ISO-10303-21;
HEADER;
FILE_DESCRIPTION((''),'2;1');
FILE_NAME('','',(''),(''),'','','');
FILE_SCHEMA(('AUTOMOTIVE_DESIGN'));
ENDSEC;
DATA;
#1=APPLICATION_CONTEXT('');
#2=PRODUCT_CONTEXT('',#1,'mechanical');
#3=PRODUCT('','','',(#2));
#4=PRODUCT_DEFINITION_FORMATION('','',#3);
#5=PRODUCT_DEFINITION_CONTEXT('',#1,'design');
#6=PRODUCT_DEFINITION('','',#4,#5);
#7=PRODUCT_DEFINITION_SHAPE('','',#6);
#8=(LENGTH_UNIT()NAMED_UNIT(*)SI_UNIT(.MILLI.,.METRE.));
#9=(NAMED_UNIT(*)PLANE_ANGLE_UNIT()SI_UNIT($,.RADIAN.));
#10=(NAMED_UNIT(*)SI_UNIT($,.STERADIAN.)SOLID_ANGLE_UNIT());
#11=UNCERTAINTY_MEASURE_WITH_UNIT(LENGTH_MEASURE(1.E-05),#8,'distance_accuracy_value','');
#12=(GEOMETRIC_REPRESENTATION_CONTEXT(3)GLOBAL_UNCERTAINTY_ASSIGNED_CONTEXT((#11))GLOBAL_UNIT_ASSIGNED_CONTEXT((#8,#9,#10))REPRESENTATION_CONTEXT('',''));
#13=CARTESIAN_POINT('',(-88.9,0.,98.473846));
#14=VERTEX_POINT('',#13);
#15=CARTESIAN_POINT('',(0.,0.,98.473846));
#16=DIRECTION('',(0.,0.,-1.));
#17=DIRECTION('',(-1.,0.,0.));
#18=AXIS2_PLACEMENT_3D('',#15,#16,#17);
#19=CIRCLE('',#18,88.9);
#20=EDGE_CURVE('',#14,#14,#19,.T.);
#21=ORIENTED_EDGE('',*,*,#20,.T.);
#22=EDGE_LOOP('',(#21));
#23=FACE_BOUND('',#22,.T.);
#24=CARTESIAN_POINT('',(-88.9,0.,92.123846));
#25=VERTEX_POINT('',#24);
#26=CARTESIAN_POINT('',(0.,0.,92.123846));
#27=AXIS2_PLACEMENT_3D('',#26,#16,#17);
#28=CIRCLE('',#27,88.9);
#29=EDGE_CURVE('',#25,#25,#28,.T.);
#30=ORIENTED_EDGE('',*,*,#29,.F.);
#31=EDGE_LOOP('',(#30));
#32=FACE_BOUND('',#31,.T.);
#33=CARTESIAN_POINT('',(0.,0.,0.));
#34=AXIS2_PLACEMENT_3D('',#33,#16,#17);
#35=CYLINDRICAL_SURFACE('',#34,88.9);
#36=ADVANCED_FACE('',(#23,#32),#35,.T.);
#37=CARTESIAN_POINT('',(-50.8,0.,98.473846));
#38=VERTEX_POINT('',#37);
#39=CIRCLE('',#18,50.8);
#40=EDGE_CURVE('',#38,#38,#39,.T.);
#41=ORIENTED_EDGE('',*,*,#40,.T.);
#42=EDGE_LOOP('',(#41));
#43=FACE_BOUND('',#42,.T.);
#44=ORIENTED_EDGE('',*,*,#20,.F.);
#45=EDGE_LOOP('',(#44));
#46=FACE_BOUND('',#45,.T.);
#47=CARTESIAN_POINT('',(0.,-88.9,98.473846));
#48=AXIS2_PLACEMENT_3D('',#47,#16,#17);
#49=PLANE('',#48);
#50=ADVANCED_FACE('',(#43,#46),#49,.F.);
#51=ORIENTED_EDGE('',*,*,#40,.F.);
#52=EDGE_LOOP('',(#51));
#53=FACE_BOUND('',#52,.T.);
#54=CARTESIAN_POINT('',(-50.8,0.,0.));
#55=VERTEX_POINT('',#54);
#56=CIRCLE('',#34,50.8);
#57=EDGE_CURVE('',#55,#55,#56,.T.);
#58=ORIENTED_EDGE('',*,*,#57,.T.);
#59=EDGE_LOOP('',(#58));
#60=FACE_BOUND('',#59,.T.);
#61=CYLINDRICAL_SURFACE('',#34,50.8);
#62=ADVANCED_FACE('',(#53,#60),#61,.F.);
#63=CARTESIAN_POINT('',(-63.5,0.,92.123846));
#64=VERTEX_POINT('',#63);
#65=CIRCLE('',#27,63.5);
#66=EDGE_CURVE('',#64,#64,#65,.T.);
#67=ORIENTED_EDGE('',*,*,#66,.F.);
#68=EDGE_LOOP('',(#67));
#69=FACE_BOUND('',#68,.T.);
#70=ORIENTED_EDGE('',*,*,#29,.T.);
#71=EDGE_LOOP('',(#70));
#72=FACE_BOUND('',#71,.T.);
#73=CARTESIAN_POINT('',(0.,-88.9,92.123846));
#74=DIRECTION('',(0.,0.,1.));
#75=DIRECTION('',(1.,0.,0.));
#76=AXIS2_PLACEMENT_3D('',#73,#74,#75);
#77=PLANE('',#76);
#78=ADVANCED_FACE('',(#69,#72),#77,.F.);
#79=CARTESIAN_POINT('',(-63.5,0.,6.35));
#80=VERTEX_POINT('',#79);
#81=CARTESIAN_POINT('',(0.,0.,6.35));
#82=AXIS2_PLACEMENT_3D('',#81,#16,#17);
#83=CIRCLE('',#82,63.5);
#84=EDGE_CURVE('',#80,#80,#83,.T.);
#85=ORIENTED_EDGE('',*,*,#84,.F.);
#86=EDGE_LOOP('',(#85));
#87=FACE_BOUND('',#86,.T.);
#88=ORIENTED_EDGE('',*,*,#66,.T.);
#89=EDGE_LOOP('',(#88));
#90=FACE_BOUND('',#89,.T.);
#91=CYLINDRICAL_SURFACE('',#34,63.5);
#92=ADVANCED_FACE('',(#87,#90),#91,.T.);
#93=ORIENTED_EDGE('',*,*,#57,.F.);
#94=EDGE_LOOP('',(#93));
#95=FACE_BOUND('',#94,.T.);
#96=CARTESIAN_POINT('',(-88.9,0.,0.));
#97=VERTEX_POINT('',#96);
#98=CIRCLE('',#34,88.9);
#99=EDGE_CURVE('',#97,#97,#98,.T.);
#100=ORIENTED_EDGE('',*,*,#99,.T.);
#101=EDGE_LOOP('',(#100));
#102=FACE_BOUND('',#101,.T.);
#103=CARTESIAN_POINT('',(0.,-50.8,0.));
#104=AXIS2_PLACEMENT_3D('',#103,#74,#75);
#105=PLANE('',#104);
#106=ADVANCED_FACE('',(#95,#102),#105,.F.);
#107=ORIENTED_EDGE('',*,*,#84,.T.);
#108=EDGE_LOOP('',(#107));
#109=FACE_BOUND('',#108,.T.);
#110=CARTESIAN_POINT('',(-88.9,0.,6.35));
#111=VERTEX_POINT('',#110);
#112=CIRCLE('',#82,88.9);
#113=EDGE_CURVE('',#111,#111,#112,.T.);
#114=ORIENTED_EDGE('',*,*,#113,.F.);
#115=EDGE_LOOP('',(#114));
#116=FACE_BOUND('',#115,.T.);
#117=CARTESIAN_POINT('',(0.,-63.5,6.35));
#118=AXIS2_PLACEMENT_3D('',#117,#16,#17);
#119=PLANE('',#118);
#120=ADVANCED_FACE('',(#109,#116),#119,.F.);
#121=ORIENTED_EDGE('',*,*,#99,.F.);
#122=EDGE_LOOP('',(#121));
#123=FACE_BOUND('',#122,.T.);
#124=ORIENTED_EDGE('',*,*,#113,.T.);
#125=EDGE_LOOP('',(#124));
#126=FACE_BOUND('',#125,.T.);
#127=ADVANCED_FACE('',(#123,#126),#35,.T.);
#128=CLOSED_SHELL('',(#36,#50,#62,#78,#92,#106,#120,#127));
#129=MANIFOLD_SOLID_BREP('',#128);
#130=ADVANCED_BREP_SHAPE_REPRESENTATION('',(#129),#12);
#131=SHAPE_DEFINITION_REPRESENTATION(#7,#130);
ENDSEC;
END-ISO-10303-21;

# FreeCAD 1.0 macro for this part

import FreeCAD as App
import Part
import Sketcher
from FreeCAD import Vector
Q = App.Units.Quantity


def add_polygon(sketch, points):
    """Adds a closed chain of lines whose ends are joined by coincident constraints."""
    first, n = sketch.GeometryCount, len(points)
    for a, b in zip(points, points[1:] + points[:1]):
        sketch.addGeometry(Part.LineSegment(App.Vector(*a, 0), App.Vector(*b, 0)), False)
    for i in range(n):
        sketch.addConstraint(Sketcher.Constraint("Coincident", first + i, 2, first + (i + 1) % n, 1))

doc = App.newDocument("Part")
body = doc.addObject("PartDesign::Body", "Body")

# Sketch on YZ plane
sketch1 = body.newObject("Sketcher::SketchObject", "Sketch")
sketch1.AttachmentSupport = (doc.getObject("YZ_Plane"), [""])
sketch1.MapMode = "FlatFace"
add_polygon(sketch1, [(-89, 0), (-51, 0), (-51, 98), (-89, 98), (-89, 92), (-64, 92), (-64, 6), (-89, 6)])  # lines 0-7
sketch1.addConstraint([
    Sketcher.Constraint("Horizontal", 0),
    Sketcher.Constraint("Vertical", 1),
    Sketcher.Constraint("Horizontal", 2),
    Sketcher.Constraint("Vertical", 3),
    Sketcher.Constraint("Horizontal", 4),
    Sketcher.Constraint("Vertical", 5),
    Sketcher.Constraint("Horizontal", 6),
    Sketcher.Constraint("Vertical", 7),
    Sketcher.Constraint("PointOnObject", 0, 2, -1),
    Sketcher.Constraint("Vertical", 3, 2, 6, 2),
    Sketcher.Constraint("Equal", 3, 7),
    Sketcher.Constraint("DistanceX", 4, 1, 4, 2, Q("1 in")),
    Sketcher.Constraint("DistanceX", 0, 1, 0, 2, Q("1.5 in")),
    Sketcher.Constraint("DistanceX", 0, 2, -1, 1, Q("2 in")),
    Sketcher.Constraint("DistanceY", 3, 2, 3, 1, Q("0.25 in")),
    Sketcher.Constraint("DistanceY", 1, 1, 1, 2, Q("98.473846 mm")),
])
revolution = body.newObject("PartDesign::Revolution", "Revolution")
revolution.Profile = sketch1
revolution.ReferenceAxis = (sketch1, ["V_Axis"])
revolution.Angle = 360

doc.recompute()
